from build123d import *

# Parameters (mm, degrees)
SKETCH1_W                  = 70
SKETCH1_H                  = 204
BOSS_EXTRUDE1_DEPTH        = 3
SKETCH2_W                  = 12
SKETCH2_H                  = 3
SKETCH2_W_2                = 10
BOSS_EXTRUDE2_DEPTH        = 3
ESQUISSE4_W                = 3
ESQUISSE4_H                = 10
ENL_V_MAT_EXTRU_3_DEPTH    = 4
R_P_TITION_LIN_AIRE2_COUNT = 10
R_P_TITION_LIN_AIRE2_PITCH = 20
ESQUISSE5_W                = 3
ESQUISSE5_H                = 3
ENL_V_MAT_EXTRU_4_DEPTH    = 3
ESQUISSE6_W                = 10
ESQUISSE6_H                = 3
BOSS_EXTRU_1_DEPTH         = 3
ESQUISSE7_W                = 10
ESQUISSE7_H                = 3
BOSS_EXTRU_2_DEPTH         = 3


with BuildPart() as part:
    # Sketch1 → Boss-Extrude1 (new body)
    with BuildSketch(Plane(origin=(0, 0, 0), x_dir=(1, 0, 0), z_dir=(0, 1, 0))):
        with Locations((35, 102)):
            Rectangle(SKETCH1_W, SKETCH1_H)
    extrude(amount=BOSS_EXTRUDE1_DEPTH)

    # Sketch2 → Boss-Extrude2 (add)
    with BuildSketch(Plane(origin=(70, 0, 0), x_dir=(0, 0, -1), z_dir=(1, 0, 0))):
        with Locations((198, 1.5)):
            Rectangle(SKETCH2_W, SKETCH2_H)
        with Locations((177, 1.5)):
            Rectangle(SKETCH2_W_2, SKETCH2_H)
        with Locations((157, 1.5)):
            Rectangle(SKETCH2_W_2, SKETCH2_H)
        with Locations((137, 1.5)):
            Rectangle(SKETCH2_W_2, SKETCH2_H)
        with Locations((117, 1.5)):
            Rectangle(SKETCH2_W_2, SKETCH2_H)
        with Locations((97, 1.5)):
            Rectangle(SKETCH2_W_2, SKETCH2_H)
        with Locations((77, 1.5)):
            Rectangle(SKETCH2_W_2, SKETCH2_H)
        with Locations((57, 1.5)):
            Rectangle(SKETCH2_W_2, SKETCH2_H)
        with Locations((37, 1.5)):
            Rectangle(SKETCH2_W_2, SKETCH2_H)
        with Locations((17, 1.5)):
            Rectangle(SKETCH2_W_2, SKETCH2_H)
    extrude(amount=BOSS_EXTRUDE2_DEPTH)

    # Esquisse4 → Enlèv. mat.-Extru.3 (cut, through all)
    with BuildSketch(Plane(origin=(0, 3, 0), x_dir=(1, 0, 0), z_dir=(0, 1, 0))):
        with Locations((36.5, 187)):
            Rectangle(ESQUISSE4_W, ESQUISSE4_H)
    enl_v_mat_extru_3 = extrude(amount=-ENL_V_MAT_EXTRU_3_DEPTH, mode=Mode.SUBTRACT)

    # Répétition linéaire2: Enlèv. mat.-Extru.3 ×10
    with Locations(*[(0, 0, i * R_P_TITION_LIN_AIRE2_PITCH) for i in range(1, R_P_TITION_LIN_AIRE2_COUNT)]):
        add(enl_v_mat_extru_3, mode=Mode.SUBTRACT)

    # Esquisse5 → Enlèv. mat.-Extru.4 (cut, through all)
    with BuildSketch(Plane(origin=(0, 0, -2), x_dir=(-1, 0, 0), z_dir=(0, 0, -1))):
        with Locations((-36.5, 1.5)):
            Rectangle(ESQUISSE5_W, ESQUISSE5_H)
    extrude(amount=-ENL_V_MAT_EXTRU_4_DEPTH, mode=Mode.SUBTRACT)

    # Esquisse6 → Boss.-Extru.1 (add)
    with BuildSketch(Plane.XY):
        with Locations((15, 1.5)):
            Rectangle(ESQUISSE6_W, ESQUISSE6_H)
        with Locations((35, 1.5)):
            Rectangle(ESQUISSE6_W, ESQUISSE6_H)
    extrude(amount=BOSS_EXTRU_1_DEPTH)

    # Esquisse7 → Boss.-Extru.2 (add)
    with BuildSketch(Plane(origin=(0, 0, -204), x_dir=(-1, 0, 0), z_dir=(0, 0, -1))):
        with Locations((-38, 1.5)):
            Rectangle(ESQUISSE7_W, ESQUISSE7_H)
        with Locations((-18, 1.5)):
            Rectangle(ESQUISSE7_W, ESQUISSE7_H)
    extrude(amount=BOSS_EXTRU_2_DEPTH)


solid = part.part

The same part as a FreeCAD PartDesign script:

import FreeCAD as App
import Part
import Sketcher
from FreeCAD import Vector
Q = App.Units.Quantity

doc = App.newDocument("Part")
params = doc.addObject("Spreadsheet::Sheet", "Params")
for row, (alias, value) in enumerate([
    ("sketch1_width", "70 mm"),
    ("sketch1_height", "204 mm"),
    ("pad1_length", "3 mm"),
    ("sketch2_width", "3 mm"),
    ("sketch2_height", "12 mm"),
    ("sketch2_height2", "10 mm"),
    ("pad2_length", "3 mm"),
    ("sketch3_width", "3 mm"),
    ("sketch3_height", "10 mm"),
    ("linearpattern_pitch", "20 mm"),
    ("sketch4_width", "3 mm"),
    ("sketch5_width", "10 mm"),
    ("sketch5_height", "3 mm"),
    ("pad3_length", "3 mm"),
    ("sketch6_width", "10 mm"),
    ("sketch6_height", "3 mm"),
    ("pad4_length", "3 mm"),
], start=1):
    params.set(f"A{row}", alias)
    params.set(f"B{row}", "=" + value)
    params.setAlias(f"B{row}", alias)

body = doc.addObject("PartDesign::Body", "Body")

sketch1 = body.newObject("Sketcher::SketchObject", "Sketch")
sketch1.AttachmentSupport = (doc.getObject("XZ_Plane"), [""])
sketch1.MapMode = "FlatFace"
sketch1.addGeometry([
    Part.LineSegment(Vector(0, -204, 0), Vector(0, 0, 0)),
    Part.LineSegment(Vector(0, 0, 0), Vector(70, 0, 0)),
    Part.LineSegment(Vector(70, 0, 0), Vector(70, -204, 0)),
    Part.LineSegment(Vector(70, -204, 0), Vector(0, -204, 0)),
], False)
sketch1.addConstraint([
    Sketcher.Constraint("Coincident", 0, 2, 1, 1),
    Sketcher.Constraint("Coincident", 1, 2, 2, 1),
    Sketcher.Constraint("Coincident", 2, 2, 3, 1),
    Sketcher.Constraint("Coincident", 3, 2, 0, 1),
    Sketcher.Constraint("Vertical", 0),
    Sketcher.Constraint("Horizontal", 1),
    Sketcher.Constraint("Vertical", 2),
    Sketcher.Constraint("Horizontal", 3),
    Sketcher.Constraint("Coincident", 0, 2, -1, 1),
    Sketcher.Constraint("DistanceX", 1, 1, 1, 2, Q("70 mm")),
    Sketcher.Constraint("DistanceY", 0, 1, 0, 2, Q("204 mm")),
])
sketch1.setExpression("Constraints[9]", "Params.sketch1_width")
sketch1.setExpression("Constraints[10]", "Params.sketch1_height")
pad1 = body.newObject("PartDesign::Pad", "Pad")
pad1.Profile = sketch1
pad1.setExpression("Length", "Params.pad1_length")
pad1.Reversed = True

sketch2 = body.newObject("Sketcher::SketchObject", "Sketch001")
sketch2.AttachmentSupport = (doc.getObject("YZ_Plane"), [""])
sketch2.MapMode = "FlatFace"
sketch2.AttachmentOffset = App.Placement(Vector(0, 0, 70), App.Rotation())
sketch2.addGeometry([
    Part.LineSegment(Vector(3, -192, 0), Vector(0, -192, 0)),
    Part.LineSegment(Vector(0, -192, 0), Vector(0, -204, 0)),
    Part.LineSegment(Vector(0, -204, 0), Vector(3, -204, 0)),
    Part.LineSegment(Vector(3, -204, 0), Vector(3, -192, 0)),
    Part.LineSegment(Vector(3, -172, 0), Vector(0, -172, 0)),
    Part.LineSegment(Vector(0, -172, 0), Vector(0, -182, 0)),
    Part.LineSegment(Vector(0, -182, 0), Vector(3, -182, 0)),
    Part.LineSegment(Vector(3, -182, 0), Vector(3, -172, 0)),
    Part.LineSegment(Vector(3, -152, 0), Vector(0, -152, 0)),
    Part.LineSegment(Vector(0, -152, 0), Vector(0, -162, 0)),
    Part.LineSegment(Vector(0, -162, 0), Vector(3, -162, 0)),
    Part.LineSegment(Vector(3, -162, 0), Vector(3, -152, 0)),
    Part.LineSegment(Vector(3, -132, 0), Vector(0, -132, 0)),
    Part.LineSegment(Vector(0, -132, 0), Vector(0, -142, 0)),
    Part.LineSegment(Vector(0, -142, 0), Vector(3, -142, 0)),
    Part.LineSegment(Vector(3, -142, 0), Vector(3, -132, 0)),
    Part.LineSegment(Vector(3, -112, 0), Vector(0, -112, 0)),
    Part.LineSegment(Vector(0, -112, 0), Vector(0, -122, 0)),
    Part.LineSegment(Vector(0, -122, 0), Vector(3, -122, 0)),
    Part.LineSegment(Vector(3, -122, 0), Vector(3, -112, 0)),
    Part.LineSegment(Vector(3, -92, 0), Vector(0, -92, 0)),
    Part.LineSegment(Vector(0, -92, 0), Vector(0, -102, 0)),
    Part.LineSegment(Vector(0, -102, 0), Vector(3, -102, 0)),
    Part.LineSegment(Vector(3, -102, 0), Vector(3, -92, 0)),
    Part.LineSegment(Vector(3, -72, 0), Vector(0, -72, 0)),
    Part.LineSegment(Vector(0, -72, 0), Vector(0, -82, 0)),
    Part.LineSegment(Vector(0, -82, 0), Vector(3, -82, 0)),
    Part.LineSegment(Vector(3, -82, 0), Vector(3, -72, 0)),
    Part.LineSegment(Vector(3, -52, 0), Vector(0, -52, 0)),
    Part.LineSegment(Vector(0, -52, 0), Vector(0, -62, 0)),
    Part.LineSegment(Vector(0, -62, 0), Vector(3, -62, 0)),
    Part.LineSegment(Vector(3, -62, 0), Vector(3, -52, 0)),
    Part.LineSegment(Vector(3, -32, 0), Vector(0, -32, 0)),
    Part.LineSegment(Vector(0, -32, 0), Vector(0, -42, 0)),
    Part.LineSegment(Vector(0, -42, 0), Vector(3, -42, 0)),
    Part.LineSegment(Vector(3, -42, 0), Vector(3, -32, 0)),
    Part.LineSegment(Vector(3, -12, 0), Vector(0, -12, 0)),
    Part.LineSegment(Vector(0, -12, 0), Vector(0, -22, 0)),
    Part.LineSegment(Vector(0, -22, 0), Vector(3, -22, 0)),
    Part.LineSegment(Vector(3, -22, 0), Vector(3, -12, 0)),
], False)
sketch2.addConstraint([
    Sketcher.Constraint("Coincident", 0, 2, 1, 1),
    Sketcher.Constraint("Coincident", 1, 2, 2, 1),
    Sketcher.Constraint("Coincident", 2, 2, 3, 1),
    Sketcher.Constraint("Coincident", 3, 2, 0, 1),
    Sketcher.Constraint("Coincident", 4, 2, 5, 1),
    Sketcher.Constraint("Coincident", 5, 2, 6, 1),
    Sketcher.Constraint("Coincident", 6, 2, 7, 1),
    Sketcher.Constraint("Coincident", 7, 2, 4, 1),
    Sketcher.Constraint("Coincident", 8, 2, 9, 1),
    Sketcher.Constraint("Coincident", 9, 2, 10, 1),
    Sketcher.Constraint("Coincident", 10, 2, 11, 1),
    Sketcher.Constraint("Coincident", 11, 2, 8, 1),
    Sketcher.Constraint("Coincident", 12, 2, 13, 1),
    Sketcher.Constraint("Coincident", 13, 2, 14, 1),
    Sketcher.Constraint("Coincident", 14, 2, 15, 1),
    Sketcher.Constraint("Coincident", 15, 2, 12, 1),
    Sketcher.Constraint("Coincident", 16, 2, 17, 1),
    Sketcher.Constraint("Coincident", 17, 2, 18, 1),
    Sketcher.Constraint("Coincident", 18, 2, 19, 1),
    Sketcher.Constraint("Coincident", 19, 2, 16, 1),
    Sketcher.Constraint("Coincident", 20, 2, 21, 1),
    Sketcher.Constraint("Coincident", 21, 2, 22, 1),
    Sketcher.Constraint("Coincident", 22, 2, 23, 1),
    Sketcher.Constraint("Coincident", 23, 2, 20, 1),
    Sketcher.Constraint("Coincident", 24, 2, 25, 1),
    Sketcher.Constraint("Coincident", 25, 2, 26, 1),
    Sketcher.Constraint("Coincident", 26, 2, 27, 1),
    Sketcher.Constraint("Coincident", 27, 2, 24, 1),
    Sketcher.Constraint("Coincident", 28, 2, 29, 1),
    Sketcher.Constraint("Coincident", 29, 2, 30, 1),
    Sketcher.Constraint("Coincident", 30, 2, 31, 1),
    Sketcher.Constraint("Coincident", 31, 2, 28, 1),
    Sketcher.Constraint("Coincident", 32, 2, 33, 1),
    Sketcher.Constraint("Coincident", 33, 2, 34, 1),
    Sketcher.Constraint("Coincident", 34, 2, 35, 1),
    Sketcher.Constraint("Coincident", 35, 2, 32, 1),
    Sketcher.Constraint("Coincident", 36, 2, 37, 1),
    Sketcher.Constraint("Coincident", 37, 2, 38, 1),
    Sketcher.Constraint("Coincident", 38, 2, 39, 1),
    Sketcher.Constraint("Coincident", 39, 2, 36, 1),
    Sketcher.Constraint("Horizontal", 0),
    Sketcher.Constraint("Vertical", 1),
    Sketcher.Constraint("Horizontal", 2),
    Sketcher.Constraint("Vertical", 3),
    Sketcher.Constraint("Horizontal", 4),
    Sketcher.Constraint("Vertical", 5),
    Sketcher.Constraint("Horizontal", 6),
    Sketcher.Constraint("Vertical", 7),
    Sketcher.Constraint("Horizontal", 8),
    Sketcher.Constraint("Vertical", 9),
    Sketcher.Constraint("Horizontal", 10),
    Sketcher.Constraint("Vertical", 11),
    Sketcher.Constraint("Horizontal", 12),
    Sketcher.Constraint("Vertical", 13),
    Sketcher.Constraint("Horizontal", 14),
    Sketcher.Constraint("Vertical", 15),
    Sketcher.Constraint("Horizontal", 16),
    Sketcher.Constraint("Vertical", 17),
    Sketcher.Constraint("Horizontal", 18),
    Sketcher.Constraint("Vertical", 19),
    Sketcher.Constraint("Horizontal", 20),
    Sketcher.Constraint("Vertical", 21),
    Sketcher.Constraint("Horizontal", 22),
    Sketcher.Constraint("Vertical", 23),
    Sketcher.Constraint("Horizontal", 24),
    Sketcher.Constraint("Vertical", 25),
    Sketcher.Constraint("Horizontal", 26),
    Sketcher.Constraint("Vertical", 27),
    Sketcher.Constraint("Horizontal", 28),
    Sketcher.Constraint("Vertical", 29),
    Sketcher.Constraint("Horizontal", 30),
    Sketcher.Constraint("Vertical", 31),
    Sketcher.Constraint("Horizontal", 32),
    Sketcher.Constraint("Vertical", 33),
    Sketcher.Constraint("Horizontal", 34),
    Sketcher.Constraint("Vertical", 35),
    Sketcher.Constraint("Horizontal", 36),
    Sketcher.Constraint("Vertical", 37),
    Sketcher.Constraint("Horizontal", 38),
    Sketcher.Constraint("Vertical", 39),
    Sketcher.Constraint("PointOnObject", 0, 2, -2),
    Sketcher.Constraint("PointOnObject", 4, 2, -2),
    Sketcher.Constraint("PointOnObject", 8, 2, -2),
    Sketcher.Constraint("PointOnObject", 12, 2, -2),
    Sketcher.Constraint("PointOnObject", 16, 2, -2),
    Sketcher.Constraint("PointOnObject", 20, 2, -2),
    Sketcher.Constraint("PointOnObject", 24, 2, -2),
    Sketcher.Constraint("PointOnObject", 28, 2, -2),
    Sketcher.Constraint("PointOnObject", 32, 2, -2),
    Sketcher.Constraint("PointOnObject", 36, 2, -2),
    Sketcher.Constraint("Vertical", 3, 2, 6, 2),
    Sketcher.Constraint("Vertical", 7, 2, 10, 2),
    Sketcher.Constraint("Vertical", 11, 2, 14, 2),
    Sketcher.Constraint("Vertical", 15, 2, 18, 2),
    Sketcher.Constraint("Vertical", 19, 2, 22, 2),
    Sketcher.Constraint("Vertical", 23, 2, 26, 2),
    Sketcher.Constraint("Vertical", 27, 2, 30, 2),
    Sketcher.Constraint("Vertical", 31, 2, 34, 2),
    Sketcher.Constraint("Vertical", 35, 2, 38, 2),
    Sketcher.Constraint("Equal", 7, 9),
    Sketcher.Constraint("Equal", 11, 13),
    Sketcher.Constraint("Equal", 15, 17),
    Sketcher.Constraint("Equal", 19, 21),
    Sketcher.Constraint("Equal", 23, 25),
    Sketcher.Constraint("Equal", 27, 29),
    Sketcher.Constraint("Equal", 31, 33),
    Sketcher.Constraint("Equal", 35, 37),
    Sketcher.Constraint("DistanceX", 0, 2, 0, 1, Q("3 mm")),
    Sketcher.Constraint("DistanceY", 1, 2, 1, 1, Q("12 mm")),
    Sketcher.Constraint("DistanceY", 5, 2, 5, 1, Q("10 mm")),
    Sketcher.Constraint("DistanceY", 0, 2, -1, 1, Q("192 mm")),
    Sketcher.Constraint("DistanceY", 4, 2, -1, 1, Q("172 mm")),
    Sketcher.Constraint("DistanceY", 8, 2, -1, 1, Q("152 mm")),
    Sketcher.Constraint("DistanceY", 12, 2, -1, 1, Q("132 mm")),
    Sketcher.Constraint("DistanceY", 16, 2, -1, 1, Q("112 mm")),
    Sketcher.Constraint("DistanceY", 20, 2, -1, 1, Q("92 mm")),
    Sketcher.Constraint("DistanceY", 24, 2, -1, 1, Q("72 mm")),
    Sketcher.Constraint("DistanceY", 28, 2, -1, 1, Q("52 mm")),
    Sketcher.Constraint("DistanceY", 32, 2, -1, 1, Q("32 mm")),
    Sketcher.Constraint("DistanceY", 36, 2, -1, 1, Q("12 mm")),
])
sketch2.setExpression("Constraints[107]", "Params.sketch2_width")
sketch2.setExpression("Constraints[108]", "Params.sketch2_height")
sketch2.setExpression("Constraints[109]", "Params.sketch2_height2")
pad2 = body.newObject("PartDesign::Pad", "Pad001")
pad2.Profile = sketch2
pad2.setExpression("Length", "Params.pad2_length")

sketch3 = body.newObject("Sketcher::SketchObject", "Sketch002")
sketch3.AttachmentSupport = (doc.getObject("XZ_Plane"), [""])
sketch3.MapMode = "FlatFace"
sketch3.AttachmentOffset = App.Placement(Vector(0, 0, -3), App.Rotation())
sketch3.addGeometry([
    Part.LineSegment(Vector(35, -192, 0), Vector(35, -182, 0)),
    Part.LineSegment(Vector(35, -182, 0), Vector(38, -182, 0)),
    Part.LineSegment(Vector(38, -182, 0), Vector(38, -192, 0)),
    Part.LineSegment(Vector(38, -192, 0), Vector(35, -192, 0)),
], False)
sketch3.addConstraint([
    Sketcher.Constraint("Coincident", 0, 2, 1, 1),
    Sketcher.Constraint("Coincident", 1, 2, 2, 1),
    Sketcher.Constraint("Coincident", 2, 2, 3, 1),
    Sketcher.Constraint("Coincident", 3, 2, 0, 1),
    Sketcher.Constraint("Vertical", 0),
    Sketcher.Constraint("Horizontal", 1),
    Sketcher.Constraint("Vertical", 2),
    Sketcher.Constraint("Horizontal", 3),
    Sketcher.Constraint("DistanceX", 1, 1, 1, 2, Q("3 mm")),
    Sketcher.Constraint("DistanceY", 0, 1, 0, 2, Q("10 mm")),
    Sketcher.Constraint("DistanceX", -1, 1, 0, 2, Q("35 mm")),
    Sketcher.Constraint("DistanceY", 0, 2, -1, 1, Q("182 mm")),
])
sketch3.setExpression("Constraints[8]", "Params.sketch3_width")
sketch3.setExpression("Constraints[9]", "Params.sketch3_height")
pocket1 = body.newObject("PartDesign::Pocket", "Pocket")
pocket1.Profile = sketch3
pocket1.Type = "ThroughAll"
pocket1.Reversed = True
doc.recompute()

linearpattern = body.newObject("PartDesign::LinearPattern", "LinearPattern")
linearpattern.Originals = [pocket1]
linearpattern.Direction = (doc.getObject("Z_Axis"), [""])
linearpattern.Mode = "offset"
linearpattern.setExpression("Offset", "Params.linearpattern_pitch")
linearpattern.Occurrences = 10
body.Tip = linearpattern

sketch4 = body.newObject("Sketcher::SketchObject", "Sketch003")
sketch4.AttachmentSupport = (doc.getObject("XY_Plane"), [""])
sketch4.MapMode = "FlatFace"
sketch4.AttachmentOffset = App.Placement(Vector(0, 0, -2), App.Rotation())
sketch4.addGeometry([
    Part.LineSegment(Vector(38, 3, 0), Vector(38, 0, 0)),
    Part.LineSegment(Vector(38, 0, 0), Vector(35, 0, 0)),
    Part.LineSegment(Vector(35, 0, 0), Vector(35, 3, 0)),
    Part.LineSegment(Vector(35, 3, 0), Vector(38, 3, 0)),
], False)
sketch4.addConstraint([
    Sketcher.Constraint("Coincident", 0, 2, 1, 1),
    Sketcher.Constraint("Coincident", 1, 2, 2, 1),
    Sketcher.Constraint("Coincident", 2, 2, 3, 1),
    Sketcher.Constraint("Coincident", 3, 2, 0, 1),
    Sketcher.Constraint("Vertical", 0),
    Sketcher.Constraint("Horizontal", 1),
    Sketcher.Constraint("Vertical", 2),
    Sketcher.Constraint("Horizontal", 3),
    Sketcher.Constraint("PointOnObject", 0, 2, -1),
    Sketcher.Constraint("Equal", 3, 0),
    Sketcher.Constraint("DistanceX", 1, 2, 1, 1, Q("3 mm")),
    Sketcher.Constraint("DistanceX", -1, 1, 0, 2, Q("38 mm")),
])
sketch4.setExpression("Constraints[10]", "Params.sketch4_width")
pocket2 = body.newObject("PartDesign::Pocket", "Pocket001")
pocket2.Profile = sketch4
pocket2.Type = "ThroughAll"
pocket2.Reversed = True

sketch5 = body.newObject("Sketcher::SketchObject", "Sketch004")
sketch5.AttachmentSupport = (doc.getObject("XY_Plane"), [""])
sketch5.MapMode = "FlatFace"
sketch5.addGeometry([
    Part.LineSegment(Vector(10, 3, 0), Vector(10, 0, 0)),
    Part.LineSegment(Vector(10, 0, 0), Vector(20, 0, 0)),
    Part.LineSegment(Vector(20, 0, 0), Vector(20, 3, 0)),
    Part.LineSegment(Vector(20, 3, 0), Vector(10, 3, 0)),
    Part.LineSegment(Vector(30, 3, 0), Vector(30, 0, 0)),
    Part.LineSegment(Vector(30, 0, 0), Vector(40, 0, 0)),
    Part.LineSegment(Vector(40, 0, 0), Vector(40, 3, 0)),
    Part.LineSegment(Vector(40, 3, 0), Vector(30, 3, 0)),
], False)
sketch5.addConstraint([
    Sketcher.Constraint("Coincident", 0, 2, 1, 1),
    Sketcher.Constraint("Coincident", 1, 2, 2, 1),
    Sketcher.Constraint("Coincident", 2, 2, 3, 1),
    Sketcher.Constraint("Coincident", 3, 2, 0, 1),
    Sketcher.Constraint("Coincident", 4, 2, 5, 1),
    Sketcher.Constraint("Coincident", 5, 2, 6, 1),
    Sketcher.Constraint("Coincident", 6, 2, 7, 1),
    Sketcher.Constraint("Coincident", 7, 2, 4, 1),
    Sketcher.Constraint("Vertical", 0),
    Sketcher.Constraint("Horizontal", 1),
    Sketcher.Constraint("Vertical", 2),
    Sketcher.Constraint("Horizontal", 3),
    Sketcher.Constraint("Vertical", 4),
    Sketcher.Constraint("Horizontal", 5),
    Sketcher.Constraint("Vertical", 6),
    Sketcher.Constraint("Horizontal", 7),
    Sketcher.Constraint("PointOnObject", 0, 2, -1),
    Sketcher.Constraint("PointOnObject", 4, 2, -1),
    Sketcher.Constraint("Horizontal", 3, 2, 6, 2),
    Sketcher.Constraint("Equal", 3, 5),
    Sketcher.Constraint("DistanceX", 1, 1, 1, 2, Q("10 mm")),
    Sketcher.Constraint("DistanceY", 0, 2, 0, 1, Q("3 mm")),
    Sketcher.Constraint("DistanceX", -1, 1, 0, 2, Q("10 mm")),
    Sketcher.Constraint("DistanceX", -1, 1, 4, 2, Q("30 mm")),
])
sketch5.setExpression("Constraints[20]", "Params.sketch5_width")
sketch5.setExpression("Constraints[21]", "Params.sketch5_height")
pad3 = body.newObject("PartDesign::Pad", "Pad002")
pad3.Profile = sketch5
pad3.setExpression("Length", "Params.pad3_length")

sketch6 = body.newObject("Sketcher::SketchObject", "Sketch005")
sketch6.AttachmentSupport = (doc.getObject("XY_Plane"), [""])
sketch6.MapMode = "FlatFace"
sketch6.AttachmentOffset = App.Placement(Vector(0, 0, -204), App.Rotation())
sketch6.addGeometry([
    Part.LineSegment(Vector(43, 3, 0), Vector(43, 0, 0)),
    Part.LineSegment(Vector(43, 0, 0), Vector(33, 0, 0)),
    Part.LineSegment(Vector(33, 0, 0), Vector(33, 3, 0)),
    Part.LineSegment(Vector(33, 3, 0), Vector(43, 3, 0)),
    Part.LineSegment(Vector(23, 3, 0), Vector(23, 0, 0)),
    Part.LineSegment(Vector(23, 0, 0), Vector(13, 0, 0)),
    Part.LineSegment(Vector(13, 0, 0), Vector(13, 3, 0)),
    Part.LineSegment(Vector(13, 3, 0), Vector(23, 3, 0)),
], False)
sketch6.addConstraint([
    Sketcher.Constraint("Coincident", 0, 2, 1, 1),
    Sketcher.Constraint("Coincident", 1, 2, 2, 1),
    Sketcher.Constraint("Coincident", 2, 2, 3, 1),
    Sketcher.Constraint("Coincident", 3, 2, 0, 1),
    Sketcher.Constraint("Coincident", 4, 2, 5, 1),
    Sketcher.Constraint("Coincident", 5, 2, 6, 1),
    Sketcher.Constraint("Coincident", 6, 2, 7, 1),
    Sketcher.Constraint("Coincident", 7, 2, 4, 1),
    Sketcher.Constraint("Vertical", 0),
    Sketcher.Constraint("Horizontal", 1),
    Sketcher.Constraint("Vertical", 2),
    Sketcher.Constraint("Horizontal", 3),
    Sketcher.Constraint("Vertical", 4),
    Sketcher.Constraint("Horizontal", 5),
    Sketcher.Constraint("Vertical", 6),
    Sketcher.Constraint("Horizontal", 7),
    Sketcher.Constraint("PointOnObject", 0, 2, -1),
    Sketcher.Constraint("PointOnObject", 4, 2, -1),
    Sketcher.Constraint("Horizontal", 3, 2, 6, 2),
    Sketcher.Constraint("Equal", 3, 5),
    Sketcher.Constraint("DistanceX", 1, 2, 1, 1, Q("10 mm")),
    Sketcher.Constraint("DistanceY", 0, 2, 0, 1, Q("3 mm")),
    Sketcher.Constraint("DistanceX", -1, 1, 0, 2, Q("43 mm")),
    Sketcher.Constraint("DistanceX", -1, 1, 4, 2, Q("23 mm")),
])
sketch6.setExpression("Constraints[20]", "Params.sketch6_width")
sketch6.setExpression("Constraints[21]", "Params.sketch6_height")
pad4 = body.newObject("PartDesign::Pad", "Pad003")
pad4.Profile = sketch6
pad4.setExpression("Length", "Params.pad4_length")
pad4.Reversed = True

doc.recompute()
